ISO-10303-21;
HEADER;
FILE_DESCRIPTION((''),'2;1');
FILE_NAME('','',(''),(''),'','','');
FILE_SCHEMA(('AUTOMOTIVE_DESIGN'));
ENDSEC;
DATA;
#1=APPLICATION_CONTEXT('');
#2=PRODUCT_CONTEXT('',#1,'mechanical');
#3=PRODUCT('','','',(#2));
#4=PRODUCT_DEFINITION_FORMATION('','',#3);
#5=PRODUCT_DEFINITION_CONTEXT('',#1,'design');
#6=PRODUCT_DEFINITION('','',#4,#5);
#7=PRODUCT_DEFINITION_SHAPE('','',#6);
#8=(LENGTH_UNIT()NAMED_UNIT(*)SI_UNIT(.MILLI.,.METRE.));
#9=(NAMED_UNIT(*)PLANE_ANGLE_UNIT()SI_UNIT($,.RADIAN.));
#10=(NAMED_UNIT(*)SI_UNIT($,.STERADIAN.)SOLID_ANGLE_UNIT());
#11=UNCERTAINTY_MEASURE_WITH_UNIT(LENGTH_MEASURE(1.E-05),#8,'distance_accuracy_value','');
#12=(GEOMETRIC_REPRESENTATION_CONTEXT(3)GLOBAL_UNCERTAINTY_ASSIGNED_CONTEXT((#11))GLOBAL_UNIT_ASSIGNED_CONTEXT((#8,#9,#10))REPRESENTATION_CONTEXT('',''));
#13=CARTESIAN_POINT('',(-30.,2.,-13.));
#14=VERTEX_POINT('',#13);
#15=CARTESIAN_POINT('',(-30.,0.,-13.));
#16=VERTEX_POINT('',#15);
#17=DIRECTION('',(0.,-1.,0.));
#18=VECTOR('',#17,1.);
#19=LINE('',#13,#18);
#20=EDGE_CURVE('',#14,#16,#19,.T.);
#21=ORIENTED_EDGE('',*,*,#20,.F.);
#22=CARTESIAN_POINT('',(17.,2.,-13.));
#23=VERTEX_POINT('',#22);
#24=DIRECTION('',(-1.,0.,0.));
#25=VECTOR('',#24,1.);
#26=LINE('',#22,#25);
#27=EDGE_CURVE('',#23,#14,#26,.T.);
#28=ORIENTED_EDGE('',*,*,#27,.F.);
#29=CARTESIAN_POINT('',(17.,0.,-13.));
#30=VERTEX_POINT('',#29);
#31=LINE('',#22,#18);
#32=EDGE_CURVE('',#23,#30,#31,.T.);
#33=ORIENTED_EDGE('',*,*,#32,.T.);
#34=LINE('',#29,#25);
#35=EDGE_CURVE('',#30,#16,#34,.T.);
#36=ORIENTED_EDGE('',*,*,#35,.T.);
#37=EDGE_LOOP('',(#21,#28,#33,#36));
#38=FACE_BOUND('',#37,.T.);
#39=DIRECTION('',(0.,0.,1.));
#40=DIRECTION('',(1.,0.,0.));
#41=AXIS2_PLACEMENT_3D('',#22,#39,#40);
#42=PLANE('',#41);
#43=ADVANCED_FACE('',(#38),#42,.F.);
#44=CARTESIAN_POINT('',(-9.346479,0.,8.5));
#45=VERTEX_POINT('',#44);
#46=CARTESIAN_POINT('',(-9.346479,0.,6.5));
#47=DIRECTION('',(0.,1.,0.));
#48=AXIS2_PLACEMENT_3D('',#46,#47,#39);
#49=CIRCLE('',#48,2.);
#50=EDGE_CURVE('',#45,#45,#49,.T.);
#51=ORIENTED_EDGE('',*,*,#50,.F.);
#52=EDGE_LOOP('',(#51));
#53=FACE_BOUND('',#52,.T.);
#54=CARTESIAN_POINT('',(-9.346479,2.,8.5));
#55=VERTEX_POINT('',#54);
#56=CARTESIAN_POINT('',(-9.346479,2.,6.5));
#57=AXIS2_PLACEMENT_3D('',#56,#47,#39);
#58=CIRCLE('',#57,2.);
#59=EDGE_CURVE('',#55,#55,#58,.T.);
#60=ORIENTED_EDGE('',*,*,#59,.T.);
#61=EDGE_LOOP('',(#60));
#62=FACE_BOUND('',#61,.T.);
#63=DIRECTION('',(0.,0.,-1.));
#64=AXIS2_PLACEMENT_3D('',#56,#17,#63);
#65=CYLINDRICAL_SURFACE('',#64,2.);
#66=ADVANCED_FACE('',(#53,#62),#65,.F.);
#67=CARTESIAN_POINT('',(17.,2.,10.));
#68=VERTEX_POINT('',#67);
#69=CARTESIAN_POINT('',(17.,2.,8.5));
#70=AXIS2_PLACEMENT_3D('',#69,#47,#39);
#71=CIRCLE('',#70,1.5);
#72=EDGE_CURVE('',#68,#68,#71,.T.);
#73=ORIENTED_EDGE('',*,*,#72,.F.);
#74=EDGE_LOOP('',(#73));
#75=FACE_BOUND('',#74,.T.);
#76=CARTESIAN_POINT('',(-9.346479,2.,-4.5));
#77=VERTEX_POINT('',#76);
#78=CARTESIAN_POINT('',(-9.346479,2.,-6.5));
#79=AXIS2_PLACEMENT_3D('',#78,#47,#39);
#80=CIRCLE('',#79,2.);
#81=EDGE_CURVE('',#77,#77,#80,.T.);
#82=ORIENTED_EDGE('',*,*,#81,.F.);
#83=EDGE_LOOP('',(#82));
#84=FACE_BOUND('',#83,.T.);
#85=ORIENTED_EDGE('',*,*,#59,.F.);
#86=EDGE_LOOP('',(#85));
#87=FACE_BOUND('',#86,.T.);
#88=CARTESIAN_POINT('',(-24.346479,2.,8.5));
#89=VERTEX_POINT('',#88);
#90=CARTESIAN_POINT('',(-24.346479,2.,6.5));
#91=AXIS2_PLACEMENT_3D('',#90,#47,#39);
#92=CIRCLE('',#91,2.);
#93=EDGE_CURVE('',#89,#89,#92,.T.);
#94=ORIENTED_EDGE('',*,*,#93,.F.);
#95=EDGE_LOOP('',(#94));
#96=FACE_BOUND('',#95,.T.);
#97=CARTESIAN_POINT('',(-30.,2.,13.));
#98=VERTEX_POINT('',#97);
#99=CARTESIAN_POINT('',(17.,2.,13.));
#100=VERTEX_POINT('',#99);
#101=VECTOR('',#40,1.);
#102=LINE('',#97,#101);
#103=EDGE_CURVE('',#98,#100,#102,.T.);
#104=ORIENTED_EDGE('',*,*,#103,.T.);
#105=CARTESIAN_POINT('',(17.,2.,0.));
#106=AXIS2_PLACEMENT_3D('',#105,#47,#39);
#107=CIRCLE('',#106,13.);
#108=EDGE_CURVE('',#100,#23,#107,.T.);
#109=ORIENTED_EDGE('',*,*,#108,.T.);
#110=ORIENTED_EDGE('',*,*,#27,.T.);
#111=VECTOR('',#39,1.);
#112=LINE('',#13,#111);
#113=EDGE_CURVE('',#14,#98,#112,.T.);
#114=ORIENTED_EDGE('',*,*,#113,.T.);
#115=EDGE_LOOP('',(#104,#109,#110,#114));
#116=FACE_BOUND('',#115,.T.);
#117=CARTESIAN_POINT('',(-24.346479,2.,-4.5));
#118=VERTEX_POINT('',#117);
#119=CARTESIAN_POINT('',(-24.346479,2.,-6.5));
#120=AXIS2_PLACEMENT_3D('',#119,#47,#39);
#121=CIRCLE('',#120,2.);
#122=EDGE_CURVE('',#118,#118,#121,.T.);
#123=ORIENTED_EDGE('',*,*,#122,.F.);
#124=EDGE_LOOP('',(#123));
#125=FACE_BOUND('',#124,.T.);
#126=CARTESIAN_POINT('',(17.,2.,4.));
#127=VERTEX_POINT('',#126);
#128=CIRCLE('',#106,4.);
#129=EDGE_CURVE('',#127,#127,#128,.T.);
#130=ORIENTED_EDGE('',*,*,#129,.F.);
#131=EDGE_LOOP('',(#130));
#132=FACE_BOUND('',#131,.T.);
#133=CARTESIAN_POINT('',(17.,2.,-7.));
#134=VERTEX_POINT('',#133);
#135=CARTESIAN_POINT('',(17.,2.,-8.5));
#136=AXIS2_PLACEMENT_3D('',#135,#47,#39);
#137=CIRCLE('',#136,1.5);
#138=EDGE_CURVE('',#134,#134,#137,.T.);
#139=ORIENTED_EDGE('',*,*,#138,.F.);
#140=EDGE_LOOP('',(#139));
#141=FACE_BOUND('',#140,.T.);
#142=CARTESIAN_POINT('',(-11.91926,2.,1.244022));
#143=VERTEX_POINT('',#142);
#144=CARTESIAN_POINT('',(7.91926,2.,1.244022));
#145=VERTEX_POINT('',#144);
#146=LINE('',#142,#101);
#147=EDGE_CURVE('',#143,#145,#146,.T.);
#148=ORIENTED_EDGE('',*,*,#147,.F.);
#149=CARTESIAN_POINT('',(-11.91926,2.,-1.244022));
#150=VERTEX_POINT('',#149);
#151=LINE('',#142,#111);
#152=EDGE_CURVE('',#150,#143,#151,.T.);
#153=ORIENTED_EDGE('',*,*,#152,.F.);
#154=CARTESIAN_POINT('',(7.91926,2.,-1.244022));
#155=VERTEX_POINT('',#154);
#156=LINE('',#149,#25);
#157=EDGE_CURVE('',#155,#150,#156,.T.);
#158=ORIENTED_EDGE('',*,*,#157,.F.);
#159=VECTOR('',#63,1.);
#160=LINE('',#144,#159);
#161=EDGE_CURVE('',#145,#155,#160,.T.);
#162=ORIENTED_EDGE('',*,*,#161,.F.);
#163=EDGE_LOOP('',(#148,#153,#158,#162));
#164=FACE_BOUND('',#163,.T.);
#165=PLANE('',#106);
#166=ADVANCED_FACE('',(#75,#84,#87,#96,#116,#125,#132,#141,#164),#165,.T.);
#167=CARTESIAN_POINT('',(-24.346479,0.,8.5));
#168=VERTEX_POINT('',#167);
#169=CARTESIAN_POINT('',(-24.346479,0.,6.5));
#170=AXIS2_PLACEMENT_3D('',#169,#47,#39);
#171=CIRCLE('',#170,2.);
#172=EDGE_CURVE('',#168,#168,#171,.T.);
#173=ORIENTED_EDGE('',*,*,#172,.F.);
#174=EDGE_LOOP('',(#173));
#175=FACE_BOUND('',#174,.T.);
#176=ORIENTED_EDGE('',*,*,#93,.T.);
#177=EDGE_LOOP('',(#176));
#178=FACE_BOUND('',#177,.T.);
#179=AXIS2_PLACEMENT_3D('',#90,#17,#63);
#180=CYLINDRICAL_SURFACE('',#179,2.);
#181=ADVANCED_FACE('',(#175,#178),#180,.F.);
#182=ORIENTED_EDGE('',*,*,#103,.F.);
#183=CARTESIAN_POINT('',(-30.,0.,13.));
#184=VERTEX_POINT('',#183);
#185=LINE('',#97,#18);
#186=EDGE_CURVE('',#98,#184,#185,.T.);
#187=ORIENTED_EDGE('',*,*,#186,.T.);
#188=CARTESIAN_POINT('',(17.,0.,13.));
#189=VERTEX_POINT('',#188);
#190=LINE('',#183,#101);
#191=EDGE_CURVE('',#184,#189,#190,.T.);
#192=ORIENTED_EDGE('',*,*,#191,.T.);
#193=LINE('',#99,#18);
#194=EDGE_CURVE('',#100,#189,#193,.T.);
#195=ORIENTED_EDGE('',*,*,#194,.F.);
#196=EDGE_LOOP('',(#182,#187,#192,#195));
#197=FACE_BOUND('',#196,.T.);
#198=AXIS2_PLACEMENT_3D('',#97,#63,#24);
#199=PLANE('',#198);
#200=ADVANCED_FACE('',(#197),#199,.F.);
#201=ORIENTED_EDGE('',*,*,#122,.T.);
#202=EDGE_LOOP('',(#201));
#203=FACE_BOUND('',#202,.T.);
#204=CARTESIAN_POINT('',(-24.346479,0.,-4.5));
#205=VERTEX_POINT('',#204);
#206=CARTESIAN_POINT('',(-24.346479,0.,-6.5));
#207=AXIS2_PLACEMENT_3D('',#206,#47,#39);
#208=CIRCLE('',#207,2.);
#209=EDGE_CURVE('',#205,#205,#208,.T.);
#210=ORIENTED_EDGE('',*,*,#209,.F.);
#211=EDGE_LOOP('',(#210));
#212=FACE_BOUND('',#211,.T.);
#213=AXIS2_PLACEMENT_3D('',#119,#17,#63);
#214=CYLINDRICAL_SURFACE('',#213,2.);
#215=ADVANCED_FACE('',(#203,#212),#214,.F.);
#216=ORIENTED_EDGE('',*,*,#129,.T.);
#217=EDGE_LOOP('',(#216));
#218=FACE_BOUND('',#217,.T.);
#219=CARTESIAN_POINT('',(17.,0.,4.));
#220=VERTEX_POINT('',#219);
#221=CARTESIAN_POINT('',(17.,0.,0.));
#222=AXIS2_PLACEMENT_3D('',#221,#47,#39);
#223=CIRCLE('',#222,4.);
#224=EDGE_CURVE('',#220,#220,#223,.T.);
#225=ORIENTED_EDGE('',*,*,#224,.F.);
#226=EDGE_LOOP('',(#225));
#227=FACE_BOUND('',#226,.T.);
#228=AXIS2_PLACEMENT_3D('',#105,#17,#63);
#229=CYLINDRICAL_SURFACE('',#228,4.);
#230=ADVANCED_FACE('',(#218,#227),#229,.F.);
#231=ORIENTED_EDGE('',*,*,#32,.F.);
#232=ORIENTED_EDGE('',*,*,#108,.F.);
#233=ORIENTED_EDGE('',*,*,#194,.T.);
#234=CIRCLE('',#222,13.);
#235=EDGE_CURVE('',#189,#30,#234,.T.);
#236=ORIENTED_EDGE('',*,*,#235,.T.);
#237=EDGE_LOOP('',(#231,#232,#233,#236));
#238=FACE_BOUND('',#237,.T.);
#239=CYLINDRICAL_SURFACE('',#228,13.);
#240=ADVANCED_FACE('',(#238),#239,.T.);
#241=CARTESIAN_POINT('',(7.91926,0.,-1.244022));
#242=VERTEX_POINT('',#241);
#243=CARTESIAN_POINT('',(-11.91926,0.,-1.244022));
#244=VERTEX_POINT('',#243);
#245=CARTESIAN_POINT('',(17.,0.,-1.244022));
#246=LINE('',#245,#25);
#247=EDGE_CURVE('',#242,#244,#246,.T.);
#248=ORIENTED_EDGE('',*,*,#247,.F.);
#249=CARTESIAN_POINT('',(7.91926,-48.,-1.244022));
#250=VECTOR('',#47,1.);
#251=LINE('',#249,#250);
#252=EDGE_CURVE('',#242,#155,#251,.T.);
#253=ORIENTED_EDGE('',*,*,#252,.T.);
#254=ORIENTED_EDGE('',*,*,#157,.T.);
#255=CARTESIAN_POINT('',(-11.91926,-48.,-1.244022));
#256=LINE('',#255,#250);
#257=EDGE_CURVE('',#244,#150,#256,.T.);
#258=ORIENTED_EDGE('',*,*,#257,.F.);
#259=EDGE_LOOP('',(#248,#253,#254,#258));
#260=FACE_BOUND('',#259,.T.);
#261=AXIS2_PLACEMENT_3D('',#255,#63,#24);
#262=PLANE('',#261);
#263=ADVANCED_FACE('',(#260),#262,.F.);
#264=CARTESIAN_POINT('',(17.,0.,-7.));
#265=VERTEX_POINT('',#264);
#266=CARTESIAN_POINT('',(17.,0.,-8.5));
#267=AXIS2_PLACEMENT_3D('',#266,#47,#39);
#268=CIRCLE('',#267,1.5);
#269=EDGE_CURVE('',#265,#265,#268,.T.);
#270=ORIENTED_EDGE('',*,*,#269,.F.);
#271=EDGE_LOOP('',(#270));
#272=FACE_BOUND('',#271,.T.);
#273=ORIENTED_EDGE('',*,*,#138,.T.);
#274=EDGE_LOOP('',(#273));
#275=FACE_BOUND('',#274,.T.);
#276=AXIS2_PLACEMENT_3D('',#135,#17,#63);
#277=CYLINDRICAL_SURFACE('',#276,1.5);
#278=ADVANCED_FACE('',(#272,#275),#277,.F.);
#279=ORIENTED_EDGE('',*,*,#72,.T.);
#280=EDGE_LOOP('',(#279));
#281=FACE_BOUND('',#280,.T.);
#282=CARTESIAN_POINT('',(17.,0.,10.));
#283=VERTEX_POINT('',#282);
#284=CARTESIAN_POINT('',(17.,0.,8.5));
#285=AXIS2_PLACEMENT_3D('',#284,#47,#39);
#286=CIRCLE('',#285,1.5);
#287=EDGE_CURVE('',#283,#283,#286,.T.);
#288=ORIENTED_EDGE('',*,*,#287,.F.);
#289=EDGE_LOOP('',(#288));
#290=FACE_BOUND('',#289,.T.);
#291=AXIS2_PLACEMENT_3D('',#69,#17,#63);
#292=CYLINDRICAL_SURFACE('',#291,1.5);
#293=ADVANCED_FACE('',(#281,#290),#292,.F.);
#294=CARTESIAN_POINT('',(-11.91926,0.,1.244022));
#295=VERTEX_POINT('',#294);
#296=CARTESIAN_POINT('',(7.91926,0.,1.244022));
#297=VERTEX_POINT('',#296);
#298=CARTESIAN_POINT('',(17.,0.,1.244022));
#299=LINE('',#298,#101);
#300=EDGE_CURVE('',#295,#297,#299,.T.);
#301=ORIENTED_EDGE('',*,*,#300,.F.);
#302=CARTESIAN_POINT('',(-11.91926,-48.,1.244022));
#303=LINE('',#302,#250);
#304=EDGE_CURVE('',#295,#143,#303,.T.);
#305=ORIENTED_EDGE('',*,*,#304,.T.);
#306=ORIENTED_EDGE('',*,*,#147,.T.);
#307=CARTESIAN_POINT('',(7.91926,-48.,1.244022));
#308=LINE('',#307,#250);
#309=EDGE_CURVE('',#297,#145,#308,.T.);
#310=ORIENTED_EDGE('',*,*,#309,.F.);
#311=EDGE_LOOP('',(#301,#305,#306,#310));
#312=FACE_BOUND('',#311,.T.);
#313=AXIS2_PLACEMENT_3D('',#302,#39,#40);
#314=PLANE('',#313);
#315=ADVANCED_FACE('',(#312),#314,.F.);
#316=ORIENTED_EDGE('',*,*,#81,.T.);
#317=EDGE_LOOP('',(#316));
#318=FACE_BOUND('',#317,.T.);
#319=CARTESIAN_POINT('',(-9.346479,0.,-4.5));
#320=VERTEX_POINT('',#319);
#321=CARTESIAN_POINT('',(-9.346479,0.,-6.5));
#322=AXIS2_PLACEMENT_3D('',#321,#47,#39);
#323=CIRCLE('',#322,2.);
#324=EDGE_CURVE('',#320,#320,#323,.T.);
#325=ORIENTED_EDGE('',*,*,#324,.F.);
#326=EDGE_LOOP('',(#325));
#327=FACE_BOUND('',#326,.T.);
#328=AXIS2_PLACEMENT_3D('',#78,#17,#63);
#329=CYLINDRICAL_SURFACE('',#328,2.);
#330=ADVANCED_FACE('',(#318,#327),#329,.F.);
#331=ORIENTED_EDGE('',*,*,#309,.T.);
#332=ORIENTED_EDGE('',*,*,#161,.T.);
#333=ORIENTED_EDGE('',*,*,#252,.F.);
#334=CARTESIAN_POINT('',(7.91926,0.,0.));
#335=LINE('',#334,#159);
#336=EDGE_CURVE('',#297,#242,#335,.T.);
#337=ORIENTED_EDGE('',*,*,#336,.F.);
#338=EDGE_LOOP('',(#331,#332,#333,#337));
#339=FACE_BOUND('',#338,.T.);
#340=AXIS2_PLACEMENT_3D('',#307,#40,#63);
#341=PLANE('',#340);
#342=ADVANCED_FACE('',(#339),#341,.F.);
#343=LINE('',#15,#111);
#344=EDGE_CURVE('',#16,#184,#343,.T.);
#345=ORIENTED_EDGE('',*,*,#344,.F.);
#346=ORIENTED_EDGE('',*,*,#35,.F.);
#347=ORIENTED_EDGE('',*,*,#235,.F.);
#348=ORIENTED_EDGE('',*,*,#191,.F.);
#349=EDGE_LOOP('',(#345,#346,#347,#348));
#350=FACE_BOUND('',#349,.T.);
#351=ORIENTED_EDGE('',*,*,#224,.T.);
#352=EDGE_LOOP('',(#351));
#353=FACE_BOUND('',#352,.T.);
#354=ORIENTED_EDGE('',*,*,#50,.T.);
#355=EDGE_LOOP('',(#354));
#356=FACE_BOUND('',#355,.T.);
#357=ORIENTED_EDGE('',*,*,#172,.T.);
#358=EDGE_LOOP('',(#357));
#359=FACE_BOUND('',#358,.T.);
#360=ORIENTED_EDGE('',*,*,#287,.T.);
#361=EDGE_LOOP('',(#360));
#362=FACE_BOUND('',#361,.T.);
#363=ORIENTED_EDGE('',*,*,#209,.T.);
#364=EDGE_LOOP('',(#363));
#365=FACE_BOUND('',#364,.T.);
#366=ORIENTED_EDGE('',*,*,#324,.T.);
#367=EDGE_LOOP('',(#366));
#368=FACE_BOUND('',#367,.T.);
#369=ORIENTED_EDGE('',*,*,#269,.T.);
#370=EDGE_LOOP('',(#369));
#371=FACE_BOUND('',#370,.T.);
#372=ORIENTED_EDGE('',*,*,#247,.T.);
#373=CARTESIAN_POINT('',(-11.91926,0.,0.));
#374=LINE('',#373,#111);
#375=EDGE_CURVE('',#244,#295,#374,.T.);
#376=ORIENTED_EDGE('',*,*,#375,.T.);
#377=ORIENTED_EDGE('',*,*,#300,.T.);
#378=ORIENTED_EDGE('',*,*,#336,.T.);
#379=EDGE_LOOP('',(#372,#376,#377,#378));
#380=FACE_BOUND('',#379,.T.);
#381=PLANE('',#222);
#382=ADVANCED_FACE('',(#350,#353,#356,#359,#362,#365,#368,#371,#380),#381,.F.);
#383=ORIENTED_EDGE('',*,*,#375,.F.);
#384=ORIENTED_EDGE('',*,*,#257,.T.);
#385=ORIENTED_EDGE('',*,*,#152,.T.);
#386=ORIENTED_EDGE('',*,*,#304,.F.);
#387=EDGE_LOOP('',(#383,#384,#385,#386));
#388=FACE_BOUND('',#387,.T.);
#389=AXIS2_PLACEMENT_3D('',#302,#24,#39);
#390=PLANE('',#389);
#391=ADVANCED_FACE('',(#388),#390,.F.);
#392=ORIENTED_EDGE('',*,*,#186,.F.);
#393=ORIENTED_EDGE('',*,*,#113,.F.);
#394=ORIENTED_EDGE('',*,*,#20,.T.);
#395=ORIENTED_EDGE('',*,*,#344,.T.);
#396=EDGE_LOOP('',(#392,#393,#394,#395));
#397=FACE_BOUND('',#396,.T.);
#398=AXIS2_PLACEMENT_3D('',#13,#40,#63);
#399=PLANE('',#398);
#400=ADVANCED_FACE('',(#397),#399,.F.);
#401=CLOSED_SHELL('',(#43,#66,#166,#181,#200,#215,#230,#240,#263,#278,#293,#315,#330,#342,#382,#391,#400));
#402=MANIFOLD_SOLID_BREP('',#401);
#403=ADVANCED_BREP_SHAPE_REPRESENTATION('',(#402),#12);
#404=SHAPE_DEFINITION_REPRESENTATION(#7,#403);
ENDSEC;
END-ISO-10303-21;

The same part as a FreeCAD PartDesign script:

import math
import FreeCAD as App
import Part
import Sketcher
Q = App.Units.Quantity


def add_polygon(sketch, points):
    """Adds a closed chain of lines whose ends are joined by coincident constraints."""
    first, n = sketch.GeometryCount, len(points)
    for a, b in zip(points, points[1:] + points[:1]):
        sketch.addGeometry(Part.LineSegment(App.Vector(*a, 0), App.Vector(*b, 0)), False)
    for i in range(n):
        sketch.addConstraint(Sketcher.Constraint("Coincident", first + i, 2, first + (i + 1) % n, 1))

doc = App.newDocument("Part")
body = doc.addObject("PartDesign::Body", "Body")

# Sketch on XZ plane
sketch1 = doc.addObject("Sketcher::SketchObject", "Sketch")
body.addObject(sketch1)
sketch1.AttachmentSupport = (doc.XZ_Plane, [""])
sketch1.MapMode = "FlatFace"
sketch1.addGeometry([
    Part.LineSegment(App.Vector(17, -13, 0), App.Vector(-30, -13, 0)),  # 0
    Part.LineSegment(App.Vector(-30, -13, 0), App.Vector(-30, 13, 0)),  # 1
    Part.LineSegment(App.Vector(-30, 13, 0), App.Vector(17, 13, 0)),  # 2
    Part.ArcOfCircle(Part.Circle(App.Vector(17, 0, 0), App.Vector(0, 0, 1), 13), math.radians(-90), math.radians(90)),  # 3
    Part.Circle(App.Vector(-24.3, 6.5, 0), App.Vector(0, 0, 1), 2),  # 4
    Part.Circle(App.Vector(-9.3, 6.5, 0), App.Vector(0, 0, 1), 2),  # 5
    Part.Circle(App.Vector(17, 8.5, 0), App.Vector(0, 0, 1), 1.5),  # 6
    Part.Circle(App.Vector(-24.3, -6.5, 0), App.Vector(0, 0, 1), 2),  # 7
    Part.Circle(App.Vector(-9.3, -6.5, 0), App.Vector(0, 0, 1), 2),  # 8
    Part.Circle(App.Vector(17, 0, 0), App.Vector(0, 0, 1), 4),  # 9
    Part.Circle(App.Vector(17, -8.5, 0), App.Vector(0, 0, 1), 1.5),  # 10
], False)
sketch1.addConstraint([
    Sketcher.Constraint("Coincident", 0, 2, 1, 1),
    Sketcher.Constraint("Coincident", 1, 2, 2, 1),
    Sketcher.Constraint("Tangent", 2, 2, 3, 2),
    Sketcher.Constraint("Tangent", 3, 1, 0, 1),
    Sketcher.Constraint("Horizontal", 0),
    Sketcher.Constraint("Vertical", 1),
    Sketcher.Constraint("Horizontal", 2),
    Sketcher.Constraint("Coincident", 9, 3, 3, 3),
    Sketcher.Constraint("Equal", 4, 5),
    Sketcher.Constraint("Equal", 5, 7),
    Sketcher.Constraint("Equal", 7, 8),
    Sketcher.Constraint("Equal", 6, 10),
    Sketcher.Constraint("Symmetric", 4, 3, 7, 3, -1),
    Sketcher.Constraint("Symmetric", 5, 3, 8, 3, -1),
    Sketcher.Constraint("Symmetric", 6, 3, 10, 3, -1),
    Sketcher.Constraint("PointOnObject", 3, 3, -1),
    Sketcher.Constraint("Horizontal", 4, 3, 5, 3),
    Sketcher.Constraint("Vertical", 3, 3, 6, 3),
    Sketcher.Constraint("Diameter", 4, Q("4 mm")),
    Sketcher.Constraint("Diameter", 6, Q("3 mm")),
    Sketcher.Constraint("Diameter", 9, Q("8 mm")),
    Sketcher.Constraint("Radius", 3, Q("13 mm")),
    Sketcher.Constraint("DistanceX", 0, 2, 0, 1, Q("47 mm")),
    Sketcher.Constraint("DistanceX", -1, 1, 3, 3, Q("17 mm")),
    Sketcher.Constraint("DistanceX", 4, 3, 5, 3, Q("15 mm")),
    Sketcher.Constraint("DistanceY", 5, 3, 6, 3, Q("2 mm")),
    Sketcher.Constraint("DistanceY", 7, 3, 4, 3, Q("13 mm")),
    Sketcher.Constraint("DistanceX", 4, 3, -1, 1, Q("24.346479 mm")),
])
pad1 = doc.addObject("PartDesign::Pad", "Pad")
body.addObject(pad1)
pad1.Profile = sketch1
pad1.Length = 2
pad1.Reversed = True

# Sketch on XZ plane
sketch2 = doc.addObject("Sketcher::SketchObject", "Sketch001")
body.addObject(sketch2)
sketch2.AttachmentSupport = (doc.XZ_Plane, [""])
sketch2.MapMode = "FlatFace"
sketch2.AttachmentOffset = App.Placement(App.Vector(0, 0, -2), App.Rotation())
add_polygon(sketch2, [(-11.9, -1.2), (-11.9, 1.2), (7.9, 1.2), (7.9, -1.2)])  # lines 0-3
sketch2.addConstraint([
    Sketcher.Constraint("Vertical", 0),
    Sketcher.Constraint("Horizontal", 1),
    Sketcher.Constraint("Vertical", 2),
    Sketcher.Constraint("Horizontal", 3),
    Sketcher.Constraint("DistanceX", 1, 1, 1, 2, Q("19.83852 mm")),
    Sketcher.Constraint("DistanceY", 0, 1, 0, 2, Q("2.488043 mm")),
    Sketcher.Constraint("DistanceX", 0, 2, -1, 1, Q("11.91926 mm")),
    Sketcher.Constraint("DistanceY", -1, 1, 0, 2, Q("1.244022 mm")),
])
pocket1 = doc.addObject("PartDesign::Pocket", "Pocket")
body.addObject(pocket1)
pocket1.Profile = sketch2
pocket1.Length = 50
pocket1.Reversed = True

doc.recompute()
